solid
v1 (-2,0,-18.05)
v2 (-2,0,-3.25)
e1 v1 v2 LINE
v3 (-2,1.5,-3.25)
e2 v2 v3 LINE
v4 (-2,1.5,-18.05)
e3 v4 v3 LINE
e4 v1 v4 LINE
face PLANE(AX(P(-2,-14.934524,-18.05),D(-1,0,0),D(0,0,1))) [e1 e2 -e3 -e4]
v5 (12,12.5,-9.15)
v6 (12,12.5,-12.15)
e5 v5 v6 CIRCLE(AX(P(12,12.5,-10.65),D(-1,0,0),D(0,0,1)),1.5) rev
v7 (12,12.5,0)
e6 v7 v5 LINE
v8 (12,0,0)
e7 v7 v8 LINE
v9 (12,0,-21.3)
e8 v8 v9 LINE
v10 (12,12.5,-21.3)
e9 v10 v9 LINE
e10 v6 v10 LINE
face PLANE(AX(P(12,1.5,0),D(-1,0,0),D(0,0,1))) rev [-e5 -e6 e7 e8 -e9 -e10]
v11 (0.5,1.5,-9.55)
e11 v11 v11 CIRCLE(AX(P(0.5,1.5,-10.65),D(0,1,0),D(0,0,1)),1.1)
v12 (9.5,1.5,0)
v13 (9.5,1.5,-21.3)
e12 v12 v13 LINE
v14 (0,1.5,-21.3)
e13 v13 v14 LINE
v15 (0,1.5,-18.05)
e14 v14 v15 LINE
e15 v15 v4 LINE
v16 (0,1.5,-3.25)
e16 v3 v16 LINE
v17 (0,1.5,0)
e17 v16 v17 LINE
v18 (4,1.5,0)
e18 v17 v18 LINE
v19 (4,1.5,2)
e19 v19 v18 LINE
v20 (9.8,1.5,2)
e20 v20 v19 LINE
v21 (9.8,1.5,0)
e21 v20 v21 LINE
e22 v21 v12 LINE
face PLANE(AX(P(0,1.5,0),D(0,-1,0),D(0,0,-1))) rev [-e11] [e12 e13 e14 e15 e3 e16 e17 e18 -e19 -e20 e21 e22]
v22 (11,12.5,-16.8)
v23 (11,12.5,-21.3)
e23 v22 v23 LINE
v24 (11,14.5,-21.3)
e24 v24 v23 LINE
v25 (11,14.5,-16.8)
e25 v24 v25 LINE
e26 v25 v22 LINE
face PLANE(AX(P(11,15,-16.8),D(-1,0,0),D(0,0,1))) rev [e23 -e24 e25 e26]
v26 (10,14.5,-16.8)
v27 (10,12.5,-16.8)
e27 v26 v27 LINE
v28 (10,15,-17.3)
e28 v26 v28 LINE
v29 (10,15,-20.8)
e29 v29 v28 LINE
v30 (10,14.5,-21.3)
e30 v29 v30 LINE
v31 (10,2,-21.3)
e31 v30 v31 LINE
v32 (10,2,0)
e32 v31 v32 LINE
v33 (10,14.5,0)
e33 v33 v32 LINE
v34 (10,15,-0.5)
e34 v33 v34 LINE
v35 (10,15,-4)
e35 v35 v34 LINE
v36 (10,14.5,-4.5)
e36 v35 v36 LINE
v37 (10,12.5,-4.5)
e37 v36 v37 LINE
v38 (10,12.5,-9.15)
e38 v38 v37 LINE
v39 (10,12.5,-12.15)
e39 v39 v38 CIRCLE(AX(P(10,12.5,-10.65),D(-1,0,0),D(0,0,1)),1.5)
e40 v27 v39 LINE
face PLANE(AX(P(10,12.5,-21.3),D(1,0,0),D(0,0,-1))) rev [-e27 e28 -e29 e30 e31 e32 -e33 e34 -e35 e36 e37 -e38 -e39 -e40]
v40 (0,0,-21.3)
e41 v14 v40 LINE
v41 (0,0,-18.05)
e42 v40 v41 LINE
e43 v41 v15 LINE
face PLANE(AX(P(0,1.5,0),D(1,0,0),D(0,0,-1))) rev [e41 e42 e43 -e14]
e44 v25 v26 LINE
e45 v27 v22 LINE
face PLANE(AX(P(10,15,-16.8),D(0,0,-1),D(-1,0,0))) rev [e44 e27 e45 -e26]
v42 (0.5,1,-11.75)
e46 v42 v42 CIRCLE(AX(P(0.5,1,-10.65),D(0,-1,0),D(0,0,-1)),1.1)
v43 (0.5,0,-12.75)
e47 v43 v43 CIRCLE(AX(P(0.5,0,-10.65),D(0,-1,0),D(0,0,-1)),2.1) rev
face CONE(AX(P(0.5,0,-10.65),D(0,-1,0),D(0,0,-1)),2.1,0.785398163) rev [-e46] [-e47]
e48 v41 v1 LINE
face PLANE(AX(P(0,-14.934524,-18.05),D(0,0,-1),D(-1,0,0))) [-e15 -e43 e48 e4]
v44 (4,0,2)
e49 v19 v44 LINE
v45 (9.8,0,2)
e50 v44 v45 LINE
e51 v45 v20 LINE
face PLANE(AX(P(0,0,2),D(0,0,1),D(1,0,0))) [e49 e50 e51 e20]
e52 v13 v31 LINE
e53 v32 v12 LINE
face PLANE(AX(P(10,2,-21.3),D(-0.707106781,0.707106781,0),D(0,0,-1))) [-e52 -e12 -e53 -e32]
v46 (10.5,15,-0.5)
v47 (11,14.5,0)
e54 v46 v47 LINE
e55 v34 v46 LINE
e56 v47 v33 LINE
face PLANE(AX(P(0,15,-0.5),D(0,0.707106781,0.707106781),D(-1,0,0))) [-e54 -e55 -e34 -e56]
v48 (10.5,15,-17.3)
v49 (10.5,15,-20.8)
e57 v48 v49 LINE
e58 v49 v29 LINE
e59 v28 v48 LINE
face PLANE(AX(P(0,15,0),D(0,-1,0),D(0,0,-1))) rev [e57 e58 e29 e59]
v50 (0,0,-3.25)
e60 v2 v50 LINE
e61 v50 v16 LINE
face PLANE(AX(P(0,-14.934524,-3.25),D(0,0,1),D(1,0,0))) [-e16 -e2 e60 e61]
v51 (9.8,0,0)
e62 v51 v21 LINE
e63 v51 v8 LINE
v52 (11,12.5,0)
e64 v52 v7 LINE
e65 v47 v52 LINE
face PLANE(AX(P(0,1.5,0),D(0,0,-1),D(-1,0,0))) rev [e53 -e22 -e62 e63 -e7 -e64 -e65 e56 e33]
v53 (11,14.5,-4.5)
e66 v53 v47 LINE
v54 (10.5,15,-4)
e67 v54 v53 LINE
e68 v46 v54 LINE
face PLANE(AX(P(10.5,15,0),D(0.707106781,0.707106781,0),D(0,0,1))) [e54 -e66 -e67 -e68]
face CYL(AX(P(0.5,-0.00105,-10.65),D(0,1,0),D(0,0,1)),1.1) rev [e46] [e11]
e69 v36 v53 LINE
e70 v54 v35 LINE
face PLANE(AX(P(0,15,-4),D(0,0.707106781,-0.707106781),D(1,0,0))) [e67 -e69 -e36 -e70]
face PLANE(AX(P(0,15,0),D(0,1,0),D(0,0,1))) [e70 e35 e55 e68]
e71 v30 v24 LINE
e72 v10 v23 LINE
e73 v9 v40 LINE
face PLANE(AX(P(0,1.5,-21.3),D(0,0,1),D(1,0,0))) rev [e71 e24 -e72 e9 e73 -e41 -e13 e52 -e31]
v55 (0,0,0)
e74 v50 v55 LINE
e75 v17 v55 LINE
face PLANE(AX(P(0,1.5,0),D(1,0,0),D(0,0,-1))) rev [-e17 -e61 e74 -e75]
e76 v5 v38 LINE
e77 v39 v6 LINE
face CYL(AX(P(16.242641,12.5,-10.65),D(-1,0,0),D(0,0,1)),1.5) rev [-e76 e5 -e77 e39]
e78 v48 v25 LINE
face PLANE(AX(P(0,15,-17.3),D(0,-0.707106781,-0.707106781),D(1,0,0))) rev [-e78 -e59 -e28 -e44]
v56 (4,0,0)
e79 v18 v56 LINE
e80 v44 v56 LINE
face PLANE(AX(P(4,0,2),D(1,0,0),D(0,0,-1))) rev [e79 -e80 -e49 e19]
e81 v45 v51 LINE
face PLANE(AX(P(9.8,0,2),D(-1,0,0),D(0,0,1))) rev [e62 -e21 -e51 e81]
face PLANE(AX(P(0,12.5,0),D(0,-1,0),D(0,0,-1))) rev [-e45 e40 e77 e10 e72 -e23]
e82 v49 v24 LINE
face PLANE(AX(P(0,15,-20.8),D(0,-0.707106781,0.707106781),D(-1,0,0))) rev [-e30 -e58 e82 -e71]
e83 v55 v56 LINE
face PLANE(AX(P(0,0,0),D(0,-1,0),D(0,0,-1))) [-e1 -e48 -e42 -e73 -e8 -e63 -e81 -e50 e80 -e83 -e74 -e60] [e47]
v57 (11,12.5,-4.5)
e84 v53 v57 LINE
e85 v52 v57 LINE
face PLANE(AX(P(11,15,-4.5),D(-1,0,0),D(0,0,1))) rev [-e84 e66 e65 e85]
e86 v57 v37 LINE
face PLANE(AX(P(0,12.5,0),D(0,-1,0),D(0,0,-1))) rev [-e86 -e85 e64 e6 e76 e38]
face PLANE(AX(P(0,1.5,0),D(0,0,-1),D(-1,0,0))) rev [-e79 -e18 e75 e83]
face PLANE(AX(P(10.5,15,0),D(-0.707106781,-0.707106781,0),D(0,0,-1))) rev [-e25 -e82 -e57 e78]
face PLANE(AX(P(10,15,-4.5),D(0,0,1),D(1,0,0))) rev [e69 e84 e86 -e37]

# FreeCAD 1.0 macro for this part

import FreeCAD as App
import Part
import Sketcher


def edges_at(feature, points):
    """Names of the edges that pass closest to the given points."""
    edges = feature.Shape.Edges
    near = lambda p: min(range(len(edges)), key=lambda i: edges[i].distToShape(Part.Vertex(*p))[0])
    return sorted({f"Edge{near(p) + 1}" for p in points})

doc = App.newDocument("Part")
body = doc.addObject("PartDesign::Body", "Body")

sketch1 = doc.addObject("Sketcher::SketchObject", "Sketch")
body.addObject(sketch1)
sketch1.AttachmentSupport = (doc.XZ_Plane, [""])
sketch1.MapMode = "FlatFace"
sketch1.addGeometry([
    Part.LineSegment(App.Vector(0, -21.3, 0), App.Vector(0, 0, 0)),
    Part.LineSegment(App.Vector(0, 0, 0), App.Vector(12, 0, 0)),
    Part.LineSegment(App.Vector(12, 0, 0), App.Vector(12, -21.3, 0)),
    Part.LineSegment(App.Vector(12, -21.3, 0), App.Vector(0, -21.3, 0)),
], False)
sketch1.addConstraint([
    Sketcher.Constraint("Coincident", 0, 2, 1, 1),
    Sketcher.Constraint("Coincident", 1, 2, 2, 1),
    Sketcher.Constraint("Coincident", 2, 2, 3, 1),
    Sketcher.Constraint("Coincident", 3, 2, 0, 1),
    Sketcher.Constraint("Vertical", 0),
    Sketcher.Constraint("Horizontal", 1),
    Sketcher.Constraint("Vertical", 2),
    Sketcher.Constraint("Horizontal", 3),
    Sketcher.Constraint("Coincident", 0, 2, -1, 1),
    Sketcher.Constraint("DistanceX", 1, 1, 1, 2, 12.0),
    Sketcher.Constraint("DistanceY", 0, 1, 0, 2, 21.3),
])
pad1 = doc.addObject("PartDesign::Pad", "Pad")
body.addObject(pad1)
pad1.Profile = sketch1
pad1.Length = 1.5
pad1.Reversed = True

sketch2 = doc.addObject("Sketcher::SketchObject", "Sketch001")
body.addObject(sketch2)
sketch2.AttachmentSupport = (doc.XZ_Plane, [""])
sketch2.MapMode = "FlatFace"
sketch2.AttachmentOffset = App.Placement(App.Vector(0, 0, -1.5), App.Rotation())
sketch2.addGeometry([
    Part.LineSegment(App.Vector(10, -21.3, 0), App.Vector(10, 0, 0)),
    Part.LineSegment(App.Vector(10, 0, 0), App.Vector(12, 0, 0)),
    Part.LineSegment(App.Vector(12, 0, 0), App.Vector(12, -21.3, 0)),
    Part.LineSegment(App.Vector(12, -21.3, 0), App.Vector(10, -21.3, 0)),
], False)
sketch2.addConstraint([
    Sketcher.Constraint("Coincident", 0, 2, 1, 1),
    Sketcher.Constraint("Coincident", 1, 2, 2, 1),
    Sketcher.Constraint("Coincident", 2, 2, 3, 1),
    Sketcher.Constraint("Coincident", 3, 2, 0, 1),
    Sketcher.Constraint("Vertical", 0),
    Sketcher.Constraint("Horizontal", 1),
    Sketcher.Constraint("Vertical", 2),
    Sketcher.Constraint("Horizontal", 3),
    Sketcher.Constraint("PointOnObject", 0, 2, -1),
    Sketcher.Constraint("DistanceX", 1, 1, 1, 2, 2.0),
    Sketcher.Constraint("DistanceY", 0, 1, 0, 2, 21.3),
    Sketcher.Constraint("DistanceX", -1, 1, 0, 2, 10.0),
])
pad2 = doc.addObject("PartDesign::Pad", "Pad001")
body.addObject(pad2)
pad2.Profile = sketch2
pad2.Length = 11
pad2.Reversed = True

sketch3 = doc.addObject("Sketcher::SketchObject", "Sketch002")
body.addObject(sketch3)
sketch3.AttachmentSupport = (doc.XZ_Plane, [""])
sketch3.MapMode = "FlatFace"
sketch3.AttachmentOffset = App.Placement(App.Vector(0, 0, -1.5), App.Rotation())
sketch3.addGeometry([
    Part.LineSegment(App.Vector(-2, -18.05, 0), App.Vector(-2, -3.25, 0)),
    Part.LineSegment(App.Vector(-2, -3.25, 0), App.Vector(0, -3.25, 0)),
    Part.LineSegment(App.Vector(0, -3.25, 0), App.Vector(0, -18.05, 0)),
    Part.LineSegment(App.Vector(0, -18.05, 0), App.Vector(-2, -18.05, 0)),
], False)
sketch3.addConstraint([
    Sketcher.Constraint("Coincident", 0, 2, 1, 1),
    Sketcher.Constraint("Coincident", 1, 2, 2, 1),
    Sketcher.Constraint("Coincident", 2, 2, 3, 1),
    Sketcher.Constraint("Coincident", 3, 2, 0, 1),
    Sketcher.Constraint("Vertical", 0),
    Sketcher.Constraint("Horizontal", 1),
    Sketcher.Constraint("Vertical", 2),
    Sketcher.Constraint("Horizontal", 3),
    Sketcher.Constraint("PointOnObject", 1, 2, -2),
    Sketcher.Constraint("DistanceX", 1, 1, 1, 2, 2.0),
    Sketcher.Constraint("DistanceY", 0, 1, 0, 2, 14.8),
    Sketcher.Constraint("DistanceY", 0, 2, -1, 1, 3.25),
])
pad3 = doc.addObject("PartDesign::Pad", "Pad002")
body.addObject(pad3)
pad3.Profile = sketch3
pad3.Length = 1.5

sketch4 = doc.addObject("Sketcher::SketchObject", "Sketch003")
body.addObject(sketch4)
sketch4.AttachmentSupport = (doc.YZ_Plane, [""])
sketch4.MapMode = "FlatFace"
sketch4.AttachmentOffset = App.Placement(App.Vector(0, 0, 10), App.Rotation())
sketch4.addGeometry(Part.Circle(App.Vector(12.5, -10.65, 0), App.Vector(0, 0, 1), 1.5), False)
sketch4.addConstraint([
    Sketcher.Constraint("Diameter", 0, 3.0),
    Sketcher.Constraint("DistanceX", -1, 1, 0, 3, 12.5),
    Sketcher.Constraint("DistanceY", 0, 3, -1, 1, 10.65),
])
pocket1 = doc.addObject("PartDesign::Pocket", "Pocket")
body.addObject(pocket1)
pocket1.Profile = sketch4
pocket1.Length = 2
pocket1.Reversed = True
doc.recompute()

chamfer = doc.addObject("PartDesign::Chamfer", "Chamfer")
body.addObject(chamfer)
chamfer.Base = (pocket1, edges_at(pocket1, [(10, 1.5, -10.65)]))
chamfer.Size = 0.5

sketch5 = doc.addObject("Sketcher::SketchObject", "Sketch004")
body.addObject(sketch5)
sketch5.AttachmentSupport = (doc.XZ_Plane, [""])
sketch5.MapMode = "FlatFace"
sketch5.AttachmentOffset = App.Placement(App.Vector(0, 0, -1.5), App.Rotation())
sketch5.addGeometry(Part.Circle(App.Vector(0.5, -10.65, 0), App.Vector(0, 0, 1), 1.1), False)
sketch5.addConstraint([
    Sketcher.Constraint("Diameter", 0, 2.2),
    Sketcher.Constraint("DistanceX", -1, 1, 0, 3, 0.5),
    Sketcher.Constraint("DistanceY", 0, 3, -1, 1, 10.65),
])
pocket2 = doc.addObject("PartDesign::Pocket", "Pocket001")
body.addObject(pocket2)
pocket2.Profile = sketch5
pocket2.Type = "UpToFirst"
pocket2.Reversed = True
doc.recompute()

chamfer2 = doc.addObject("PartDesign::Chamfer", "Chamfer001")
body.addObject(chamfer2)
chamfer2.Base = (pocket2, edges_at(pocket2, [(-0.6, 0, -10.65)]))
chamfer2.Size = 1

sketch6 = doc.addObject("Sketcher::SketchObject", "Sketch005")
body.addObject(sketch6)
sketch6.AttachmentSupport = (doc.XZ_Plane, [""])
sketch6.MapMode = "FlatFace"
sketch6.AttachmentOffset = App.Placement(App.Vector(0, 0, -12.5), App.Rotation())
sketch6.addGeometry([
    Part.LineSegment(App.Vector(10, -4.5, 0), App.Vector(10, 0, 0)),
    Part.LineSegment(App.Vector(10, 0, 0), App.Vector(11, 0, 0)),
    Part.LineSegment(App.Vector(11, 0, 0), App.Vector(11, -4.5, 0)),
    Part.LineSegment(App.Vector(11, -4.5, 0), App.Vector(10, -4.5, 0)),
    Part.LineSegment(App.Vector(10, -21.3, 0), App.Vector(10, -16.8, 0)),
    Part.LineSegment(App.Vector(10, -16.8, 0), App.Vector(11, -16.8, 0)),
    Part.LineSegment(App.Vector(11, -16.8, 0), App.Vector(11, -21.3, 0)),
    Part.LineSegment(App.Vector(11, -21.3, 0), App.Vector(10, -21.3, 0)),
], False)
sketch6.addConstraint([
    Sketcher.Constraint("Coincident", 0, 2, 1, 1),
    Sketcher.Constraint("Coincident", 1, 2, 2, 1),
    Sketcher.Constraint("Coincident", 2, 2, 3, 1),
    Sketcher.Constraint("Coincident", 3, 2, 0, 1),
    Sketcher.Constraint("Coincident", 4, 2, 5, 1),
    Sketcher.Constraint("Coincident", 5, 2, 6, 1),
    Sketcher.Constraint("Coincident", 6, 2, 7, 1),
    Sketcher.Constraint("Coincident", 7, 2, 4, 1),
    Sketcher.Constraint("Vertical", 0),
    Sketcher.Constraint("Horizontal", 1),
    Sketcher.Constraint("Vertical", 2),
    Sketcher.Constraint("Horizontal", 3),
    Sketcher.Constraint("Vertical", 4),
    Sketcher.Constraint("Horizontal", 5),
    Sketcher.Constraint("Vertical", 6),
    Sketcher.Constraint("Horizontal", 7),
    Sketcher.Constraint("PointOnObject", 0, 2, -1),
    Sketcher.Constraint("Vertical", 3, 2, 4, 2),
    Sketcher.Constraint("Vertical", 2, 2, 5, 2),
    Sketcher.Constraint("Equal", 2, 4),
    Sketcher.Constraint("DistanceX", 1, 1, 1, 2, 1.0),
    Sketcher.Constraint("DistanceY", 0, 1, 0, 2, 4.5),
    Sketcher.Constraint("DistanceX", -1, 1, 0, 2, 10.0),
    Sketcher.Constraint("DistanceY", 4, 2, -1, 1, 16.8),
])
pad4 = doc.addObject("PartDesign::Pad", "Pad003")
body.addObject(pad4)
pad4.Profile = sketch6
pad4.Length = 2.5
pad4.Reversed = True
doc.recompute()

chamfer3 = doc.addObject("PartDesign::Chamfer", "Chamfer002")
body.addObject(chamfer3)
chamfer3.Base = (pad4, edges_at(pad4, [
    (10.5, 15, -21.3),
    (11, 15, -19.05),
    (10.5, 15, -16.8),
    (10.5, 15, -4.5),
    (11, 15, -2.25),
    (10.5, 15, 0),
]))
chamfer3.Size = 0.5

sketch7 = doc.addObject("Sketcher::SketchObject", "Sketch006")
body.addObject(sketch7)
sketch7.AttachmentSupport = (doc.XY_Plane, [""])
sketch7.MapMode = "FlatFace"
sketch7.addGeometry([
    Part.LineSegment(App.Vector(4, 1.5, 0), App.Vector(4, 0, 0)),
    Part.LineSegment(App.Vector(4, 0, 0), App.Vector(9.8, 0, 0)),
    Part.LineSegment(App.Vector(9.8, 0, 0), App.Vector(9.8, 1.5, 0)),
    Part.LineSegment(App.Vector(9.8, 1.5, 0), App.Vector(4, 1.5, 0)),
], False)
sketch7.addConstraint([
    Sketcher.Constraint("Coincident", 0, 2, 1, 1),
    Sketcher.Constraint("Coincident", 1, 2, 2, 1),
    Sketcher.Constraint("Coincident", 2, 2, 3, 1),
    Sketcher.Constraint("Coincident", 3, 2, 0, 1),
    Sketcher.Constraint("Vertical", 0),
    Sketcher.Constraint("Horizontal", 1),
    Sketcher.Constraint("Vertical", 2),
    Sketcher.Constraint("Horizontal", 3),
    Sketcher.Constraint("PointOnObject", 0, 2, -1),
    Sketcher.Constraint("DistanceX", 1, 1, 1, 2, 5.8),
    Sketcher.Constraint("DistanceY", 0, 2, 0, 1, 1.5),
    Sketcher.Constraint("DistanceX", -1, 1, 0, 2, 4.0),
])
pad5 = doc.addObject("PartDesign::Pad", "Pad004")
body.addObject(pad5)
pad5.Profile = sketch7
pad5.Length = 2

doc.recompute()
